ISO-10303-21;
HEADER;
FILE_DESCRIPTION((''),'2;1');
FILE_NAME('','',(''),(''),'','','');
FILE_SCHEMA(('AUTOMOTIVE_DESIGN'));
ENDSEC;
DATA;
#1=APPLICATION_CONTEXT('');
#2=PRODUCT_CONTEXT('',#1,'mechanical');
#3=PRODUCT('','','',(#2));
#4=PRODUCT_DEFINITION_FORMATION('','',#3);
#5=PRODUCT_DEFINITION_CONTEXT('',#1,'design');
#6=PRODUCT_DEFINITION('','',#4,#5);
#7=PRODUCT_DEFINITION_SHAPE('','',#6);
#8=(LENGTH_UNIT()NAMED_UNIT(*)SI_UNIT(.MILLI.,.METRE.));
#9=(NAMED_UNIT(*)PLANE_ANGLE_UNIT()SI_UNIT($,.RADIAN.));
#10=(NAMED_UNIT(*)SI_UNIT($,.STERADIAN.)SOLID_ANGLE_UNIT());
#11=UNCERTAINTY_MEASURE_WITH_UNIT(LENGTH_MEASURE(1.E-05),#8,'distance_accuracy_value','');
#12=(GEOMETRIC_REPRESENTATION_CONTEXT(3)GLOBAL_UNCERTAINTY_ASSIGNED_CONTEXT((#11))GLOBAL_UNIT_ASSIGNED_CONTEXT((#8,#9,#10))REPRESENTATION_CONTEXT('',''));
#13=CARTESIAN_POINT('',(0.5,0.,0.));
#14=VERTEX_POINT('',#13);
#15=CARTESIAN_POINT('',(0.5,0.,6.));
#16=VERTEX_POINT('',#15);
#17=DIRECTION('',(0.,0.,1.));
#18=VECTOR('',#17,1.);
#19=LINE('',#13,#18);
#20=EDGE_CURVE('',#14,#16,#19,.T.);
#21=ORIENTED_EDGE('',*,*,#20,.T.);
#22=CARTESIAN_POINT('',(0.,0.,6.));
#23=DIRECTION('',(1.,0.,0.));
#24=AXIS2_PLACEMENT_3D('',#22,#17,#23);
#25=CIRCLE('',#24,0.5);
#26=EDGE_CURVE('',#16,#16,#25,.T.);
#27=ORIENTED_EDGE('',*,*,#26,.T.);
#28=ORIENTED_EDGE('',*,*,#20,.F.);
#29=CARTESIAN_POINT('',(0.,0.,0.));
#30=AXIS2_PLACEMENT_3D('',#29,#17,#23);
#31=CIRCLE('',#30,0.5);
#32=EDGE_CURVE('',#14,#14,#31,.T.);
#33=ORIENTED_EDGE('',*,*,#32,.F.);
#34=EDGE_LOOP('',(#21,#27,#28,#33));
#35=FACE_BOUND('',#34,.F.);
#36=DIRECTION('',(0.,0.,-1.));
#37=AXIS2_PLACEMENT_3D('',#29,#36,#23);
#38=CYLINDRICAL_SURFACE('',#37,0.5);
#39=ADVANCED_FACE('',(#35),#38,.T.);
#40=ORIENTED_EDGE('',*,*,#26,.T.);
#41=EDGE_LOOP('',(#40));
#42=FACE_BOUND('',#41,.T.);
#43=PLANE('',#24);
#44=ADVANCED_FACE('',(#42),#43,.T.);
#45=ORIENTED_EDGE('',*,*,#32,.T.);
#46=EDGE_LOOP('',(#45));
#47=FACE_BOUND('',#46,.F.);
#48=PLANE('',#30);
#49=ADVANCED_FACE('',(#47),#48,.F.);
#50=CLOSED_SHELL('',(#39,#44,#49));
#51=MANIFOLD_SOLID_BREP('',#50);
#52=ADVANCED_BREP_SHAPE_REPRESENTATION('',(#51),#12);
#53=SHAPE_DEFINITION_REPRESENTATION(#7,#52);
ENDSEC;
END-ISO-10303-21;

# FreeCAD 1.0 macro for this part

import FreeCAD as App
import Part
import Sketcher

doc = App.newDocument("Part")
body = doc.addObject("PartDesign::Body", "Body")

sketch1 = body.newObject("Sketcher::SketchObject", "Sketch")
sketch1.AttachmentSupport = (doc.getObject("XY_Plane"), [""])
sketch1.MapMode = "FlatFace"
sketch1.addGeometry(Part.Circle(App.Vector(0, 0, 0), App.Vector(0, 0, 1), 0.5), False)
sketch1.addConstraint([
    Sketcher.Constraint("Coincident", 0, 3, -1, 1),
    Sketcher.Constraint("Diameter", 0, 1.0),
])
pad1 = body.newObject("PartDesign::Pad", "Pad")
pad1.Profile = sketch1
pad1.Length = 6

doc.recompute()
